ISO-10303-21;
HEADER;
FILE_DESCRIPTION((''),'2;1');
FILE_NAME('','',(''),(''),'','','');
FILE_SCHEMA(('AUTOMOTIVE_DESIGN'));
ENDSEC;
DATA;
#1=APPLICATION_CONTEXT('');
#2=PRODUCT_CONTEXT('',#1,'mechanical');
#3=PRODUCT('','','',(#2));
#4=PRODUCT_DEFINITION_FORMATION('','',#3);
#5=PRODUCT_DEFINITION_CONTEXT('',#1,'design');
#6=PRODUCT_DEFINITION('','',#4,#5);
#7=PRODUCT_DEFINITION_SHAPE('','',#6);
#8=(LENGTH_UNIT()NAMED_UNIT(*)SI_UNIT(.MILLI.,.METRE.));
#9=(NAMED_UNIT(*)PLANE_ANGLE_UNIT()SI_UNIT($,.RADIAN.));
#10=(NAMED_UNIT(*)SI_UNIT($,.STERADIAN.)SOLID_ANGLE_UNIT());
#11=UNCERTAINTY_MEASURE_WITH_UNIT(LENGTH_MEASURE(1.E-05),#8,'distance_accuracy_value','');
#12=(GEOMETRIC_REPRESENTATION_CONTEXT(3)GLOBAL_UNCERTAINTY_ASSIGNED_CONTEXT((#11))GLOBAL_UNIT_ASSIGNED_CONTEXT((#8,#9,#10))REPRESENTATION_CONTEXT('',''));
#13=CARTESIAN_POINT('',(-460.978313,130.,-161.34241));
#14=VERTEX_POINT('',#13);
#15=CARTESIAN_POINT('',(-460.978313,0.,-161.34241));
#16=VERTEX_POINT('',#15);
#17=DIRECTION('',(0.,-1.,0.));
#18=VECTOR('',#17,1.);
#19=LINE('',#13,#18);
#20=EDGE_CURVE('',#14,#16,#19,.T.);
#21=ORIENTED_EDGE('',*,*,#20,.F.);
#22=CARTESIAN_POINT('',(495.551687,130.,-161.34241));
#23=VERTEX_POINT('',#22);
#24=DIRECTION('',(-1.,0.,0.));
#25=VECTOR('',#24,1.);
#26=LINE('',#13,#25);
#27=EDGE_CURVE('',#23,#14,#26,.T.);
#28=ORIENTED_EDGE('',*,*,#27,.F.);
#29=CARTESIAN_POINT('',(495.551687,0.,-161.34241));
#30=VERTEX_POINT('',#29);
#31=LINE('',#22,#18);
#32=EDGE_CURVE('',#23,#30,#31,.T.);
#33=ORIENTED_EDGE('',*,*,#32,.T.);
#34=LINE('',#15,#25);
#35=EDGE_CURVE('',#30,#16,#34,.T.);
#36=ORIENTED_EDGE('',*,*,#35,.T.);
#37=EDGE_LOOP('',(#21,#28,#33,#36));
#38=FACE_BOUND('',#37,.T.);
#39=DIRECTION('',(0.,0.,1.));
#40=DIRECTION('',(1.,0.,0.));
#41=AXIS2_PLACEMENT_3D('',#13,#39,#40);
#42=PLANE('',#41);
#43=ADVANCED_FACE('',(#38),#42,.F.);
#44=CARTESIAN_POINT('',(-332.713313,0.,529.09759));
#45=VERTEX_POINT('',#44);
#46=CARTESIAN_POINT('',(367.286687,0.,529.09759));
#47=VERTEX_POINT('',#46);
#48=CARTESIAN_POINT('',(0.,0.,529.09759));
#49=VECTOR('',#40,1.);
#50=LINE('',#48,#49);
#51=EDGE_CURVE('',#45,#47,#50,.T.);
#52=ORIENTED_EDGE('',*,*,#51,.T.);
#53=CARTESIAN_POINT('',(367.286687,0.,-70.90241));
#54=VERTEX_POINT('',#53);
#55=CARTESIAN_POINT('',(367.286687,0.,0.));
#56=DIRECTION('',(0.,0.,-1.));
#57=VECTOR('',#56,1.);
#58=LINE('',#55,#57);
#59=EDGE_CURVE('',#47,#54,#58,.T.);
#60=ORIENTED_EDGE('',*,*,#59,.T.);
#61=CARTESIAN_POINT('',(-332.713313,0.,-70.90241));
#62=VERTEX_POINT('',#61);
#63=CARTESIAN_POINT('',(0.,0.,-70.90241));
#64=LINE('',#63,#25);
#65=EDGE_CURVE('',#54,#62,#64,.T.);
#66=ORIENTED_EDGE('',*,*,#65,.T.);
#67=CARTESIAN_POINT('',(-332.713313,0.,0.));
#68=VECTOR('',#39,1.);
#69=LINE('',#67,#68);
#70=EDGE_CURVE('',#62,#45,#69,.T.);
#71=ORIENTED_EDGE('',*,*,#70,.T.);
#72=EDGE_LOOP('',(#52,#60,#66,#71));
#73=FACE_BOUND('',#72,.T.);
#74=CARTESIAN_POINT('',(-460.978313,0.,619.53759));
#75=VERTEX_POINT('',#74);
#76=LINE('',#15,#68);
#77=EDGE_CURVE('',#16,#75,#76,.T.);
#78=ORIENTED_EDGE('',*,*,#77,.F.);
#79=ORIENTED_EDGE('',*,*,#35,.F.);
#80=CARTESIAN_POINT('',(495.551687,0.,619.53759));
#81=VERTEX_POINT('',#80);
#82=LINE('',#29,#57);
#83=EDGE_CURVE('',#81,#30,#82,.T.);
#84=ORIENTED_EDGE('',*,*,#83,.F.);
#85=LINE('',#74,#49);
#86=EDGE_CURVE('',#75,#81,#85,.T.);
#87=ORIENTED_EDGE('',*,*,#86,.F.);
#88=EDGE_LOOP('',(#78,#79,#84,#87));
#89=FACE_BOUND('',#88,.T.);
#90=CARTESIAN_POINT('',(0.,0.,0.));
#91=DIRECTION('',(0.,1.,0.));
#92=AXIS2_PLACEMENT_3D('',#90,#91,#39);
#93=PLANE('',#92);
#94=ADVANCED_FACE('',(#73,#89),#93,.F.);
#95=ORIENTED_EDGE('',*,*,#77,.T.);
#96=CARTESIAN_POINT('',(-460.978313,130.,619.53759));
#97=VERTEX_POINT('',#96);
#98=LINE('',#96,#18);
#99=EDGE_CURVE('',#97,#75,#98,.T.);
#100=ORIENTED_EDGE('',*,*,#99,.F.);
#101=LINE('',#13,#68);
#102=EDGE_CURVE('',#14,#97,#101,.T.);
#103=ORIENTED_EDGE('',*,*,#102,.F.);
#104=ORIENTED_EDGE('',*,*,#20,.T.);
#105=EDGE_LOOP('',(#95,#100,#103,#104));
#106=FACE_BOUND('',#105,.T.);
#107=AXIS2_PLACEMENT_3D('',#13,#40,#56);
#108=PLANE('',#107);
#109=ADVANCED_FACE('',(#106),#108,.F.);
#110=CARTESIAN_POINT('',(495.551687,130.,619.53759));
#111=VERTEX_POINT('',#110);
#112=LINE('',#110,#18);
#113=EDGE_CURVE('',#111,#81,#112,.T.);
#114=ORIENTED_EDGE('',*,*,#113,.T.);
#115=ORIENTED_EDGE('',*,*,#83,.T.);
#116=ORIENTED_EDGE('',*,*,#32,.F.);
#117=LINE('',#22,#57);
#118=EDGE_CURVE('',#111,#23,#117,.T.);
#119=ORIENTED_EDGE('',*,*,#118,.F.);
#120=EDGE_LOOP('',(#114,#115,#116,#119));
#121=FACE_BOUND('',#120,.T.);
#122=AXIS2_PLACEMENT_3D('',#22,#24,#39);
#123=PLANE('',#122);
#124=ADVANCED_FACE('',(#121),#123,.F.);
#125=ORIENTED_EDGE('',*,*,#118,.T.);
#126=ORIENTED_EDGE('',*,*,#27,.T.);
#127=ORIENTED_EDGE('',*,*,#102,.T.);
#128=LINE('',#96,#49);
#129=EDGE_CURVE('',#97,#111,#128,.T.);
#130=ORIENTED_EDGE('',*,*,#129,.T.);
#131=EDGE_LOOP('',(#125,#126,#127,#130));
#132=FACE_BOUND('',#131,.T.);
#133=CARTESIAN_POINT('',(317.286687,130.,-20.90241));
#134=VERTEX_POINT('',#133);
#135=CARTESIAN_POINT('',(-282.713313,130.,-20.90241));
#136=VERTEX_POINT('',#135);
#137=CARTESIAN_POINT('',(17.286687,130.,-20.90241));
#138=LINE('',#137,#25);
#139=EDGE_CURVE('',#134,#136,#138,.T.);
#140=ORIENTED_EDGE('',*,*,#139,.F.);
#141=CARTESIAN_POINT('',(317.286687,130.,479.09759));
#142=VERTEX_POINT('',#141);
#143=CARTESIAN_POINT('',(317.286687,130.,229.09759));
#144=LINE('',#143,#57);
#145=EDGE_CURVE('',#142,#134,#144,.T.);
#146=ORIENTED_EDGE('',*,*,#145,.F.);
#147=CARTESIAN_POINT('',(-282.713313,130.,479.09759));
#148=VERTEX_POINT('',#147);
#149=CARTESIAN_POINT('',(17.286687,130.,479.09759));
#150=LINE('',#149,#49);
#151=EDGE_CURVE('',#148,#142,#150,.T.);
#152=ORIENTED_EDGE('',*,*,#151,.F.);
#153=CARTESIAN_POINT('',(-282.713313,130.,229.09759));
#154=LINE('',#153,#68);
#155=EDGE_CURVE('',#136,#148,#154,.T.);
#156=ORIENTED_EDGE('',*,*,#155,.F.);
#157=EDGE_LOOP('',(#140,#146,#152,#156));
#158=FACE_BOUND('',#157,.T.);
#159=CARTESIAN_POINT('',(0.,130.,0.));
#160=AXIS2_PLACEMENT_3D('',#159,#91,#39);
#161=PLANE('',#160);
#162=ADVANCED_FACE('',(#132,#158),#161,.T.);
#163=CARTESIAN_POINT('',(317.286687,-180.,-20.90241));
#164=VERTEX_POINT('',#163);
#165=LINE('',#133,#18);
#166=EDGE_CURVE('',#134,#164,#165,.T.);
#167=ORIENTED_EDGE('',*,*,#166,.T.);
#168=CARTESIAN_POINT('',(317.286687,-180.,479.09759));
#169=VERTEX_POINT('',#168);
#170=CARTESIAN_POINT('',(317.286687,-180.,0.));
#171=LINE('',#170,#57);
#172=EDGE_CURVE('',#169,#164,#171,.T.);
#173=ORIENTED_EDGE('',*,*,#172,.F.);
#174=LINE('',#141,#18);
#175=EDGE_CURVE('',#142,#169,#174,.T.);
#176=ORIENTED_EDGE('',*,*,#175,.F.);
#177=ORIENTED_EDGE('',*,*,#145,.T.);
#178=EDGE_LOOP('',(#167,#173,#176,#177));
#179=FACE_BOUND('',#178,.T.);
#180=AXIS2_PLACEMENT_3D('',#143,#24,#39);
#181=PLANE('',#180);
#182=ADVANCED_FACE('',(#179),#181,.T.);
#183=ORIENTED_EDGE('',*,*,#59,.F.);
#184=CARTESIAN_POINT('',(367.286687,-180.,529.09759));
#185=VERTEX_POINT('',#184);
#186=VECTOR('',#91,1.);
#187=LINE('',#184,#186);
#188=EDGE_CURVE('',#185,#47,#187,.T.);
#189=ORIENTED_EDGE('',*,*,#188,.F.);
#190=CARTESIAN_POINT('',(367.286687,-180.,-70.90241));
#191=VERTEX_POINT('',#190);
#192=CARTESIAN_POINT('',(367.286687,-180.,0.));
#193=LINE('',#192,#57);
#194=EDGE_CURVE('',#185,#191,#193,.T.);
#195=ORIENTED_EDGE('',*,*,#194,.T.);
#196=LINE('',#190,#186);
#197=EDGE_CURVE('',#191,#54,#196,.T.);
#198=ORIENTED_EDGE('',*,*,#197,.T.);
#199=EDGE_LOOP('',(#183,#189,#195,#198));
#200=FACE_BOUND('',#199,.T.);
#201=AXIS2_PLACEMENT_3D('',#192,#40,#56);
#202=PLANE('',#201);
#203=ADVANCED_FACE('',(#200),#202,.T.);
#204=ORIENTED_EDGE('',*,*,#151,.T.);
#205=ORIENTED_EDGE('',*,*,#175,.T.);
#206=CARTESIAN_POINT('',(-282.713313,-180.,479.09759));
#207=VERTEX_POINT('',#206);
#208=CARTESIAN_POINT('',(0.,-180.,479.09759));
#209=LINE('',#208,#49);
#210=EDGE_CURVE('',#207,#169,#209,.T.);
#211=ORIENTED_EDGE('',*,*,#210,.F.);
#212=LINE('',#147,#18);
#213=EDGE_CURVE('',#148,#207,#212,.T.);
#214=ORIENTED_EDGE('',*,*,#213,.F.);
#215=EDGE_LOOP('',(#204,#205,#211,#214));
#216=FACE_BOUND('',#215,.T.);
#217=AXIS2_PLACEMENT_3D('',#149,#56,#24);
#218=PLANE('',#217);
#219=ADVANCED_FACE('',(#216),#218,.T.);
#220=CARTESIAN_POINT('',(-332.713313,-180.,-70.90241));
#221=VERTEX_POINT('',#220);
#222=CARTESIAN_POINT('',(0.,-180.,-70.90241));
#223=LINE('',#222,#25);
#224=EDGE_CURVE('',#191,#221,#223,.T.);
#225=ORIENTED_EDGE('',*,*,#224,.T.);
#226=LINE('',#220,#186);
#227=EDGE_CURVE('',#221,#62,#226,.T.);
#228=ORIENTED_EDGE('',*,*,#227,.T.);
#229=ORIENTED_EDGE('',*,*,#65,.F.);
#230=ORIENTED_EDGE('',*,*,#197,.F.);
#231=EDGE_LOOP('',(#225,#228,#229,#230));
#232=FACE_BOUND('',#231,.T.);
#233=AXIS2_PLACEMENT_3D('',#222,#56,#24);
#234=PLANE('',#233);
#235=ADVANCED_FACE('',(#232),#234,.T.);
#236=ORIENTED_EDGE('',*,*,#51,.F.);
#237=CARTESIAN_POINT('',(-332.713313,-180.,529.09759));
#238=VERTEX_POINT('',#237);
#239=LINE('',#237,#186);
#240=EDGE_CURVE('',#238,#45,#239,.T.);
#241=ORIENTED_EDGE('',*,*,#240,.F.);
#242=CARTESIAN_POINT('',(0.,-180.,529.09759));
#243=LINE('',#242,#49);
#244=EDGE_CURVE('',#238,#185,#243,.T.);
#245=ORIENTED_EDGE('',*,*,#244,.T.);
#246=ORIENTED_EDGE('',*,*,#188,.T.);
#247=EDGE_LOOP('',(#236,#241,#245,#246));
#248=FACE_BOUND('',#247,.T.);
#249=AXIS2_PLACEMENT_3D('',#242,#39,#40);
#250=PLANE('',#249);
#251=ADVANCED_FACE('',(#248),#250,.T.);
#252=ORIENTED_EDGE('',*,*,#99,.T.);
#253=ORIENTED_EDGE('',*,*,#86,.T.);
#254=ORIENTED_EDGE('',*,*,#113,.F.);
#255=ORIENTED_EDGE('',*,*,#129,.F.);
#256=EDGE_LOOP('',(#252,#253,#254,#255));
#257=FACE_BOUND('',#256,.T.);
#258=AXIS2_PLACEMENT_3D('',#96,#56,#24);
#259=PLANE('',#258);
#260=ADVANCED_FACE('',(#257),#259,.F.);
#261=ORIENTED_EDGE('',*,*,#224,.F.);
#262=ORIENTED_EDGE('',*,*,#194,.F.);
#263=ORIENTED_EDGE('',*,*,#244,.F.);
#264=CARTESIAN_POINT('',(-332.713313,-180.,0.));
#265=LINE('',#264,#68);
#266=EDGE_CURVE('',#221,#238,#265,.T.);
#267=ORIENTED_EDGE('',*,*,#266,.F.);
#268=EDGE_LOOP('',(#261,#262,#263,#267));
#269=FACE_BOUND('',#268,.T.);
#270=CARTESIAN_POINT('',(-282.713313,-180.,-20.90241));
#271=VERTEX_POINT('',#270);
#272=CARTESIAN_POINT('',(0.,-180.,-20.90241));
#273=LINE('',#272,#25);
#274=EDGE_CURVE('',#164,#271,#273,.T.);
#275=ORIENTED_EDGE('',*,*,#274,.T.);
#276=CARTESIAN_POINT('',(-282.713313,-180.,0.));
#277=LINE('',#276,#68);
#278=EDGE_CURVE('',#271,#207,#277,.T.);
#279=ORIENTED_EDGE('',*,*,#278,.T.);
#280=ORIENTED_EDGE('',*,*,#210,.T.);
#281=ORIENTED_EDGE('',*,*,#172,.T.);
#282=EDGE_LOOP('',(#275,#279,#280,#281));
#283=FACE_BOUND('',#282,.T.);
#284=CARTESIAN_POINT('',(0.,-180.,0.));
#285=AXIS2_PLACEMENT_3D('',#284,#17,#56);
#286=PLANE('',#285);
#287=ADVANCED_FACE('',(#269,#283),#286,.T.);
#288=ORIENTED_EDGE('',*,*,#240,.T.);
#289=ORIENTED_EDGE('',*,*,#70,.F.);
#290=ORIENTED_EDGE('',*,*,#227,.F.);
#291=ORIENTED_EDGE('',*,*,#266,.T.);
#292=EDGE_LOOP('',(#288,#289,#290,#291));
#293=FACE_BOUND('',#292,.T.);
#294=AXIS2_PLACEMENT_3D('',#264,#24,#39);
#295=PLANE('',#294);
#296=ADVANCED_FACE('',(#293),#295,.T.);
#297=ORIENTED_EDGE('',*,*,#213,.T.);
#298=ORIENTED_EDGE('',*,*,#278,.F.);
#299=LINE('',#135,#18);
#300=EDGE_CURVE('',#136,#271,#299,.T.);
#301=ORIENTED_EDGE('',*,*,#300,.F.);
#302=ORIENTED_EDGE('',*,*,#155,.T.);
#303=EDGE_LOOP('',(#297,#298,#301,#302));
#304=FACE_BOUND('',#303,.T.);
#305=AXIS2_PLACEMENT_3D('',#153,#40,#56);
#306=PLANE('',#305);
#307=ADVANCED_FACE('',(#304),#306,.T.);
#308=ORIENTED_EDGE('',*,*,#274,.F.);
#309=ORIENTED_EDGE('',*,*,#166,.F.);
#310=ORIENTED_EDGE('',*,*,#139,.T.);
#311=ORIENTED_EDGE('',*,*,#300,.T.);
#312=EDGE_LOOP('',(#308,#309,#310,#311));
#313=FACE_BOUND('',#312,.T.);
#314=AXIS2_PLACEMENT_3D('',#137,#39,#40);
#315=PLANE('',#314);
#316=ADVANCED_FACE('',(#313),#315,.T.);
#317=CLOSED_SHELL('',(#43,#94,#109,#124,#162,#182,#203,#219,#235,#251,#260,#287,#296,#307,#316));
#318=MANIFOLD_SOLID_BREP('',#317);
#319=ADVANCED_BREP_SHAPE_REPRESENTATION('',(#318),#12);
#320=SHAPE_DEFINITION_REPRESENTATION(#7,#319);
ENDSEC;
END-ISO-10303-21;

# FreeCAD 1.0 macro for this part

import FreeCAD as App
import Part
import Sketcher

V = App.Vector


def add_polygon(sketch, points):
    """Adds a closed chain of lines whose ends are joined by coincident constraints."""
    first, n = sketch.GeometryCount, len(points)
    for a, b in zip(points, points[1:] + points[:1]):
        sketch.addGeometry(Part.LineSegment(App.Vector(*a, 0), App.Vector(*b, 0)), False)
    for i in range(n):
        sketch.addConstraint(Sketcher.Constraint("Coincident", first + i, 2, first + (i + 1) % n, 1))

doc = App.newDocument("Part")
body = doc.addObject("PartDesign::Body", "Body")

sketch1 = doc.addObject("Sketcher::SketchObject", "Sketch")
body.addObject(sketch1)
sketch1.AttachmentSupport = (doc.XZ_Plane, [""])
sketch1.MapMode = "FlatFace"
add_polygon(sketch1, [(-460.978313, -161.34241), (-460.978313, 619.53759), (495.551687, 619.53759), (495.551687, -161.34241)])
add_polygon(sketch1, [(-282.713313, -20.90241), (317.286687, -20.90241), (317.286687, 479.09759), (-282.713313, 479.09759)])
sketch1.addConstraint([
    Sketcher.Constraint("Vertical", 0),
    Sketcher.Constraint("Horizontal", 1),
    Sketcher.Constraint("Vertical", 2),
    Sketcher.Constraint("Horizontal", 3),
    Sketcher.Constraint("Horizontal", 4),
    Sketcher.Constraint("Vertical", 5),
    Sketcher.Constraint("Horizontal", 6),
    Sketcher.Constraint("Vertical", 7),
    Sketcher.Constraint("DistanceX", 4, 1, 4, 2, 600.0),
    Sketcher.Constraint("DistanceY", 5, 1, 5, 2, 500.0),
    Sketcher.Constraint("DistanceX", 1, 1, 1, 2, 956.53),
    Sketcher.Constraint("DistanceY", 0, 1, 0, 2, 780.88),
    Sketcher.Constraint("DistanceY", 2, 2, 4, 2, 140.44),
    Sketcher.Constraint("DistanceX", 4, 2, 2, 2, 178.265),
    Sketcher.Constraint("DistanceY", -1, 1, 0, 2, 619.53759),
    Sketcher.Constraint("DistanceX", 0, 2, -1, 1, 460.978313),
])
pad1 = doc.addObject("PartDesign::Pad", "Pad")
body.addObject(pad1)
pad1.Profile = sketch1
pad1.Length = 130
pad1.Reversed = True

sketch2 = doc.addObject("Sketcher::SketchObject", "Sketch001")
body.addObject(sketch2)
sketch2.AttachmentSupport = (doc.XZ_Plane, [""])
sketch2.MapMode = "FlatFace"
add_polygon(sketch2, [(367.286687, -70.90241), (367.286687, 529.09759), (-332.713313, 529.09759), (-332.713313, -70.90241)])
add_polygon(sketch2, [(317.286687, -20.90241), (-282.713313, -20.90241), (-282.713313, 479.09759), (317.286687, 479.09759)])
sketch2.addConstraint([
    Sketcher.Constraint("Vertical", 0),
    Sketcher.Constraint("Horizontal", 1),
    Sketcher.Constraint("Vertical", 2),
    Sketcher.Constraint("Horizontal", 3),
    Sketcher.Constraint("Horizontal", 4),
    Sketcher.Constraint("Vertical", 5),
    Sketcher.Constraint("Horizontal", 6),
    Sketcher.Constraint("Vertical", 7),
    Sketcher.Constraint("Equal", 6, 0),
    Sketcher.Constraint("DistanceX", 1, 2, 1, 1, 700.0),
    Sketcher.Constraint("DistanceX", 4, 2, 4, 1, 600.0),
    Sketcher.Constraint("DistanceY", 5, 1, 5, 2, 500.0),
    Sketcher.Constraint("DistanceX", 2, 2, 4, 2, 50.0),
    Sketcher.Constraint("DistanceY", 2, 2, 4, 2, 50.0),
    Sketcher.Constraint("DistanceY", -1, 1, 0, 2, 529.09759),
    Sketcher.Constraint("DistanceX", -1, 1, 0, 2, 367.286687),
])
pad2 = doc.addObject("PartDesign::Pad", "Pad001")
body.addObject(pad2)
pad2.Profile = sketch2
pad2.Length = 180

doc.recompute()
